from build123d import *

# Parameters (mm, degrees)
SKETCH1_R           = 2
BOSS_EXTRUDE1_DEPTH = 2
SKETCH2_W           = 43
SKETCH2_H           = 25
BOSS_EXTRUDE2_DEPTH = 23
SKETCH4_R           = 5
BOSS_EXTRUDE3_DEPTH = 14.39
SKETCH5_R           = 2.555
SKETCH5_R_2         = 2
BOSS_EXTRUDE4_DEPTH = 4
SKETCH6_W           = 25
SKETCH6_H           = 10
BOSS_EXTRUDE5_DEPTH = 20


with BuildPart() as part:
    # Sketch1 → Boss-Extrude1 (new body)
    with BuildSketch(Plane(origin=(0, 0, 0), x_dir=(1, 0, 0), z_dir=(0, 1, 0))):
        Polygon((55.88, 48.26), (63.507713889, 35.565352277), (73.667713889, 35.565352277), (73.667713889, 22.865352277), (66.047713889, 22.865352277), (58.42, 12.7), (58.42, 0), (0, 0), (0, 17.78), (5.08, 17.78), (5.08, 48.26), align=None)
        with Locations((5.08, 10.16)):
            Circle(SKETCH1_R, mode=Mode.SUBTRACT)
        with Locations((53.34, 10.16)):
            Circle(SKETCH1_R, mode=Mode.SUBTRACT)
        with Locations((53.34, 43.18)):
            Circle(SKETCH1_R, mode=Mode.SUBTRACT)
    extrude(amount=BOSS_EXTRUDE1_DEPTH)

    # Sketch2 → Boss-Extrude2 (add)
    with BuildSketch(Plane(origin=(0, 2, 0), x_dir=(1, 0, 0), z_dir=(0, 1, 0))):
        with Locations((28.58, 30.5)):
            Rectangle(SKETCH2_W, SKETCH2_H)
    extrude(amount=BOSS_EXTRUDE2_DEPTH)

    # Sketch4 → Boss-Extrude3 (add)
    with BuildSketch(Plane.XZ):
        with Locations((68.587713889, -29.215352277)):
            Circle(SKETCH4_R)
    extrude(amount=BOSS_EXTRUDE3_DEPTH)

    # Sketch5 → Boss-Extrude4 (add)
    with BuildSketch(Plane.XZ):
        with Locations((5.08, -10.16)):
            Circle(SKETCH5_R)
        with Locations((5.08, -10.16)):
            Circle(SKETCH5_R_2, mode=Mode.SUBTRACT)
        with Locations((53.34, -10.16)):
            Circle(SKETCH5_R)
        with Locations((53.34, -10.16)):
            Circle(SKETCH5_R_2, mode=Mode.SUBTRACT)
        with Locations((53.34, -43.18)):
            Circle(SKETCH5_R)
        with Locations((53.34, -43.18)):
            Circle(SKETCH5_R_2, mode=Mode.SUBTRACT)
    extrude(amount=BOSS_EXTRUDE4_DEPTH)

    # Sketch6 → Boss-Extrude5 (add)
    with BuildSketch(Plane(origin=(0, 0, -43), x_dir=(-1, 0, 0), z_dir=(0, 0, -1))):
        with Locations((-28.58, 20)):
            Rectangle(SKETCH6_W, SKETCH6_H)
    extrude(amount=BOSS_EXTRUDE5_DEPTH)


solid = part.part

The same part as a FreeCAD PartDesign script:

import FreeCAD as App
import Part
import Sketcher

V = App.Vector
Q = App.Units.Quantity


def add_polygon(sketch, points):
    """Adds a closed chain of lines whose ends are joined by coincident constraints."""
    first, n = sketch.GeometryCount, len(points)
    for a, b in zip(points, points[1:] + points[:1]):
        sketch.addGeometry(Part.LineSegment(App.Vector(*a, 0), App.Vector(*b, 0)), False)
    for i in range(n):
        sketch.addConstraint(Sketcher.Constraint("Coincident", first + i, 2, first + (i + 1) % n, 1))

doc = App.newDocument("Part")
body = doc.addObject("PartDesign::Body", "Body")

sketch1 = doc.addObject("Sketcher::SketchObject", "Sketch")
body.addObject(sketch1)
sketch1.AttachmentSupport = (doc.XZ_Plane, [""])
sketch1.MapMode = "FlatFace"
add_polygon(sketch1, [(63.507714, -35.565352), (55.88, -48.26), (5.08, -48.26), (5.08, -17.78), (0, -17.78), (0, 0), (58.42, 0), (58.42, -12.7), (66.047714, -22.865352), (73.667714, -22.865352), (73.667714, -35.565352)])
sketch1.addGeometry(Part.Circle(V(53.34, -10.16, 0), V(0, 0, 1), 2), False)
sketch1.addGeometry(Part.Circle(V(5.08, -10.16, 0), V(0, 0, 1), 2), False)
sketch1.addGeometry(Part.Circle(V(53.34, -43.18, 0), V(0, 0, 1), 2), False)
sketch1.addConstraint([
    Sketcher.Constraint("Horizontal", 1),
    Sketcher.Constraint("Vertical", 2),
    Sketcher.Constraint("Horizontal", 3),
    Sketcher.Constraint("Vertical", 4),
    Sketcher.Constraint("Horizontal", 5),
    Sketcher.Constraint("Vertical", 6),
    Sketcher.Constraint("Horizontal", 8),
    Sketcher.Constraint("Vertical", 9),
    Sketcher.Constraint("Horizontal", 10),
    Sketcher.Constraint("Coincident", 4, 2, -1, 1),
    Sketcher.Constraint("Equal", 11, 12),
    Sketcher.Constraint("Equal", 12, 13),
    Sketcher.Constraint("Horizontal", 11, 3, 12, 3),
    Sketcher.Constraint("Vertical", 11, 3, 13, 3),
    Sketcher.Constraint("Vertical", 12, 3, 1, 2),
    Sketcher.Constraint("Equal", 6, 9),
    Sketcher.Constraint("DistanceX", 1, 2, 1, 1, Q("2 in")),
    Sketcher.Constraint("DistanceX", 3, 2, 3, 1, Q("0.2 in")),
    Sketcher.Constraint("DistanceX", 5, 1, 5, 2, Q("2.3 in")),
    Sketcher.Constraint("DistanceX", 8, 1, 8, 2, Q("0.3 in")),
    Sketcher.Constraint("DistanceX", 10, 2, 10, 1, Q("0.4 in")),
    Sketcher.Constraint("DistanceY", 2, 1, 2, 2, Q("1.2 in")),
    Sketcher.Constraint("DistanceY", 4, 1, 4, 2, Q("0.7 in")),
    Sketcher.Constraint("DistanceY", 6, 2, 6, 1, Q("0.5 in")),
    Sketcher.Constraint("Angle", 0, Q("-121 deg")),
    Sketcher.Constraint("DistanceY", 13, 3, 2, 2, Q("1 in")),
    Sketcher.Constraint("DistanceX", -1, 1, 11, 3, Q("2.1 in")),
    Sketcher.Constraint("DistanceY", 11, 3, -1, 1, Q("0.4 in")),
    Sketcher.Constraint("Diameter", 11, 4.0),
    Sketcher.Constraint("Distance", 0, 14.81),
])
pad1 = doc.addObject("PartDesign::Pad", "Pad")
body.addObject(pad1)
pad1.Profile = sketch1
pad1.Length = 2
pad1.Reversed = True

sketch2 = doc.addObject("Sketcher::SketchObject", "Sketch001")
body.addObject(sketch2)
sketch2.AttachmentSupport = (doc.XZ_Plane, [""])
sketch2.MapMode = "FlatFace"
sketch2.AttachmentOffset = App.Placement(V(0, 0, -2), App.Rotation())
add_polygon(sketch2, [(7.08, -43), (7.08, -18), (50.08, -18), (50.08, -43)])
sketch2.addConstraint([
    Sketcher.Constraint("Vertical", 0),
    Sketcher.Constraint("Horizontal", 1),
    Sketcher.Constraint("Vertical", 2),
    Sketcher.Constraint("Horizontal", 3),
    Sketcher.Constraint("DistanceX", 1, 1, 1, 2, 43.0),
    Sketcher.Constraint("DistanceY", 0, 1, 0, 2, 25.0),
    Sketcher.Constraint("DistanceX", -1, 1, 0, 2, 7.08),
    Sketcher.Constraint("DistanceY", 0, 2, -1, 1, 18.0),
])
pad2 = doc.addObject("PartDesign::Pad", "Pad001")
body.addObject(pad2)
pad2.Profile = sketch2
pad2.Length = 23
pad2.Reversed = True

sketch3 = doc.addObject("Sketcher::SketchObject", "Sketch002")
body.addObject(sketch3)
sketch3.AttachmentSupport = (doc.XZ_Plane, [""])
sketch3.MapMode = "FlatFace"
sketch3.addGeometry(Part.Circle(V(68.587714, -29.215352, 0), V(0, 0, 1), 5), False)
sketch3.addConstraint([
    Sketcher.Constraint("Diameter", 0, 10.0),
    Sketcher.Constraint("DistanceX", -1, 1, 0, 3, 68.587714),
    Sketcher.Constraint("DistanceY", 0, 3, -1, 1, 29.215352),
])
pad3 = doc.addObject("PartDesign::Pad", "Pad002")
body.addObject(pad3)
pad3.Profile = sketch3
pad3.Length = 14.39

sketch4 = doc.addObject("Sketcher::SketchObject", "Sketch003")
body.addObject(sketch4)
sketch4.AttachmentSupport = (doc.XZ_Plane, [""])
sketch4.MapMode = "FlatFace"
sketch4.addGeometry([
    Part.Circle(V(5.08, -10.16, 0), V(0, 0, 1), 2.555),
    Part.Circle(V(5.08, -10.16, 0), V(0, 0, 1), 2),
    Part.Circle(V(53.34, -10.16, 0), V(0, 0, 1), 2.555),
    Part.Circle(V(53.34, -10.16, 0), V(0, 0, 1), 2),
    Part.Circle(V(53.34, -43.18, 0), V(0, 0, 1), 2.555),
    Part.Circle(V(53.34, -43.18, 0), V(0, 0, 1), 2),
], False)
sketch4.addConstraint([
    Sketcher.Constraint("Coincident", 1, 3, 0, 3),
    Sketcher.Constraint("Coincident", 3, 3, 2, 3),
    Sketcher.Constraint("Coincident", 5, 3, 4, 3),
    Sketcher.Constraint("Equal", 0, 2),
    Sketcher.Constraint("Equal", 1, 3),
    Sketcher.Constraint("Equal", 2, 4),
    Sketcher.Constraint("Equal", 3, 5),
    Sketcher.Constraint("Horizontal", 1, 3, 2, 3),
    Sketcher.Constraint("Vertical", 3, 3, 4, 3),
    Sketcher.Constraint("DistanceX", -1, 1, 0, 3, Q("0.2 in")),
    Sketcher.Constraint("DistanceY", 0, 3, -1, 1, Q("0.4 in")),
    Sketcher.Constraint("DistanceX", -1, 1, 2, 3, Q("2.1 in")),
    Sketcher.Constraint("DistanceY", 4, 3, -1, 1, Q("1.7 in")),
    Sketcher.Constraint("Diameter", 0, 5.11),
    Sketcher.Constraint("Diameter", 1, 4.0),
])
pad4 = doc.addObject("PartDesign::Pad", "Pad003")
body.addObject(pad4)
pad4.Profile = sketch4
pad4.Length = 4

sketch5 = doc.addObject("Sketcher::SketchObject", "Sketch004")
body.addObject(sketch5)
sketch5.AttachmentSupport = (doc.XY_Plane, [""])
sketch5.MapMode = "FlatFace"
sketch5.AttachmentOffset = App.Placement(V(0, 0, -43), App.Rotation())
add_polygon(sketch5, [(41.08, 25), (41.08, 15), (16.08, 15), (16.08, 25)])
sketch5.addConstraint([
    Sketcher.Constraint("Vertical", 0),
    Sketcher.Constraint("Horizontal", 1),
    Sketcher.Constraint("Vertical", 2),
    Sketcher.Constraint("Horizontal", 3),
    Sketcher.Constraint("DistanceX", 1, 2, 1, 1, 25.0),
    Sketcher.Constraint("DistanceY", 0, 2, 0, 1, 10.0),
    Sketcher.Constraint("DistanceX", -1, 1, 0, 2, 41.08),
    Sketcher.Constraint("DistanceY", -1, 1, 0, 2, 15.0),
])
pad5 = doc.addObject("PartDesign::Pad", "Pad004")
body.addObject(pad5)
pad5.Profile = sketch5
pad5.Length = 20
pad5.Reversed = True

doc.recompute()
